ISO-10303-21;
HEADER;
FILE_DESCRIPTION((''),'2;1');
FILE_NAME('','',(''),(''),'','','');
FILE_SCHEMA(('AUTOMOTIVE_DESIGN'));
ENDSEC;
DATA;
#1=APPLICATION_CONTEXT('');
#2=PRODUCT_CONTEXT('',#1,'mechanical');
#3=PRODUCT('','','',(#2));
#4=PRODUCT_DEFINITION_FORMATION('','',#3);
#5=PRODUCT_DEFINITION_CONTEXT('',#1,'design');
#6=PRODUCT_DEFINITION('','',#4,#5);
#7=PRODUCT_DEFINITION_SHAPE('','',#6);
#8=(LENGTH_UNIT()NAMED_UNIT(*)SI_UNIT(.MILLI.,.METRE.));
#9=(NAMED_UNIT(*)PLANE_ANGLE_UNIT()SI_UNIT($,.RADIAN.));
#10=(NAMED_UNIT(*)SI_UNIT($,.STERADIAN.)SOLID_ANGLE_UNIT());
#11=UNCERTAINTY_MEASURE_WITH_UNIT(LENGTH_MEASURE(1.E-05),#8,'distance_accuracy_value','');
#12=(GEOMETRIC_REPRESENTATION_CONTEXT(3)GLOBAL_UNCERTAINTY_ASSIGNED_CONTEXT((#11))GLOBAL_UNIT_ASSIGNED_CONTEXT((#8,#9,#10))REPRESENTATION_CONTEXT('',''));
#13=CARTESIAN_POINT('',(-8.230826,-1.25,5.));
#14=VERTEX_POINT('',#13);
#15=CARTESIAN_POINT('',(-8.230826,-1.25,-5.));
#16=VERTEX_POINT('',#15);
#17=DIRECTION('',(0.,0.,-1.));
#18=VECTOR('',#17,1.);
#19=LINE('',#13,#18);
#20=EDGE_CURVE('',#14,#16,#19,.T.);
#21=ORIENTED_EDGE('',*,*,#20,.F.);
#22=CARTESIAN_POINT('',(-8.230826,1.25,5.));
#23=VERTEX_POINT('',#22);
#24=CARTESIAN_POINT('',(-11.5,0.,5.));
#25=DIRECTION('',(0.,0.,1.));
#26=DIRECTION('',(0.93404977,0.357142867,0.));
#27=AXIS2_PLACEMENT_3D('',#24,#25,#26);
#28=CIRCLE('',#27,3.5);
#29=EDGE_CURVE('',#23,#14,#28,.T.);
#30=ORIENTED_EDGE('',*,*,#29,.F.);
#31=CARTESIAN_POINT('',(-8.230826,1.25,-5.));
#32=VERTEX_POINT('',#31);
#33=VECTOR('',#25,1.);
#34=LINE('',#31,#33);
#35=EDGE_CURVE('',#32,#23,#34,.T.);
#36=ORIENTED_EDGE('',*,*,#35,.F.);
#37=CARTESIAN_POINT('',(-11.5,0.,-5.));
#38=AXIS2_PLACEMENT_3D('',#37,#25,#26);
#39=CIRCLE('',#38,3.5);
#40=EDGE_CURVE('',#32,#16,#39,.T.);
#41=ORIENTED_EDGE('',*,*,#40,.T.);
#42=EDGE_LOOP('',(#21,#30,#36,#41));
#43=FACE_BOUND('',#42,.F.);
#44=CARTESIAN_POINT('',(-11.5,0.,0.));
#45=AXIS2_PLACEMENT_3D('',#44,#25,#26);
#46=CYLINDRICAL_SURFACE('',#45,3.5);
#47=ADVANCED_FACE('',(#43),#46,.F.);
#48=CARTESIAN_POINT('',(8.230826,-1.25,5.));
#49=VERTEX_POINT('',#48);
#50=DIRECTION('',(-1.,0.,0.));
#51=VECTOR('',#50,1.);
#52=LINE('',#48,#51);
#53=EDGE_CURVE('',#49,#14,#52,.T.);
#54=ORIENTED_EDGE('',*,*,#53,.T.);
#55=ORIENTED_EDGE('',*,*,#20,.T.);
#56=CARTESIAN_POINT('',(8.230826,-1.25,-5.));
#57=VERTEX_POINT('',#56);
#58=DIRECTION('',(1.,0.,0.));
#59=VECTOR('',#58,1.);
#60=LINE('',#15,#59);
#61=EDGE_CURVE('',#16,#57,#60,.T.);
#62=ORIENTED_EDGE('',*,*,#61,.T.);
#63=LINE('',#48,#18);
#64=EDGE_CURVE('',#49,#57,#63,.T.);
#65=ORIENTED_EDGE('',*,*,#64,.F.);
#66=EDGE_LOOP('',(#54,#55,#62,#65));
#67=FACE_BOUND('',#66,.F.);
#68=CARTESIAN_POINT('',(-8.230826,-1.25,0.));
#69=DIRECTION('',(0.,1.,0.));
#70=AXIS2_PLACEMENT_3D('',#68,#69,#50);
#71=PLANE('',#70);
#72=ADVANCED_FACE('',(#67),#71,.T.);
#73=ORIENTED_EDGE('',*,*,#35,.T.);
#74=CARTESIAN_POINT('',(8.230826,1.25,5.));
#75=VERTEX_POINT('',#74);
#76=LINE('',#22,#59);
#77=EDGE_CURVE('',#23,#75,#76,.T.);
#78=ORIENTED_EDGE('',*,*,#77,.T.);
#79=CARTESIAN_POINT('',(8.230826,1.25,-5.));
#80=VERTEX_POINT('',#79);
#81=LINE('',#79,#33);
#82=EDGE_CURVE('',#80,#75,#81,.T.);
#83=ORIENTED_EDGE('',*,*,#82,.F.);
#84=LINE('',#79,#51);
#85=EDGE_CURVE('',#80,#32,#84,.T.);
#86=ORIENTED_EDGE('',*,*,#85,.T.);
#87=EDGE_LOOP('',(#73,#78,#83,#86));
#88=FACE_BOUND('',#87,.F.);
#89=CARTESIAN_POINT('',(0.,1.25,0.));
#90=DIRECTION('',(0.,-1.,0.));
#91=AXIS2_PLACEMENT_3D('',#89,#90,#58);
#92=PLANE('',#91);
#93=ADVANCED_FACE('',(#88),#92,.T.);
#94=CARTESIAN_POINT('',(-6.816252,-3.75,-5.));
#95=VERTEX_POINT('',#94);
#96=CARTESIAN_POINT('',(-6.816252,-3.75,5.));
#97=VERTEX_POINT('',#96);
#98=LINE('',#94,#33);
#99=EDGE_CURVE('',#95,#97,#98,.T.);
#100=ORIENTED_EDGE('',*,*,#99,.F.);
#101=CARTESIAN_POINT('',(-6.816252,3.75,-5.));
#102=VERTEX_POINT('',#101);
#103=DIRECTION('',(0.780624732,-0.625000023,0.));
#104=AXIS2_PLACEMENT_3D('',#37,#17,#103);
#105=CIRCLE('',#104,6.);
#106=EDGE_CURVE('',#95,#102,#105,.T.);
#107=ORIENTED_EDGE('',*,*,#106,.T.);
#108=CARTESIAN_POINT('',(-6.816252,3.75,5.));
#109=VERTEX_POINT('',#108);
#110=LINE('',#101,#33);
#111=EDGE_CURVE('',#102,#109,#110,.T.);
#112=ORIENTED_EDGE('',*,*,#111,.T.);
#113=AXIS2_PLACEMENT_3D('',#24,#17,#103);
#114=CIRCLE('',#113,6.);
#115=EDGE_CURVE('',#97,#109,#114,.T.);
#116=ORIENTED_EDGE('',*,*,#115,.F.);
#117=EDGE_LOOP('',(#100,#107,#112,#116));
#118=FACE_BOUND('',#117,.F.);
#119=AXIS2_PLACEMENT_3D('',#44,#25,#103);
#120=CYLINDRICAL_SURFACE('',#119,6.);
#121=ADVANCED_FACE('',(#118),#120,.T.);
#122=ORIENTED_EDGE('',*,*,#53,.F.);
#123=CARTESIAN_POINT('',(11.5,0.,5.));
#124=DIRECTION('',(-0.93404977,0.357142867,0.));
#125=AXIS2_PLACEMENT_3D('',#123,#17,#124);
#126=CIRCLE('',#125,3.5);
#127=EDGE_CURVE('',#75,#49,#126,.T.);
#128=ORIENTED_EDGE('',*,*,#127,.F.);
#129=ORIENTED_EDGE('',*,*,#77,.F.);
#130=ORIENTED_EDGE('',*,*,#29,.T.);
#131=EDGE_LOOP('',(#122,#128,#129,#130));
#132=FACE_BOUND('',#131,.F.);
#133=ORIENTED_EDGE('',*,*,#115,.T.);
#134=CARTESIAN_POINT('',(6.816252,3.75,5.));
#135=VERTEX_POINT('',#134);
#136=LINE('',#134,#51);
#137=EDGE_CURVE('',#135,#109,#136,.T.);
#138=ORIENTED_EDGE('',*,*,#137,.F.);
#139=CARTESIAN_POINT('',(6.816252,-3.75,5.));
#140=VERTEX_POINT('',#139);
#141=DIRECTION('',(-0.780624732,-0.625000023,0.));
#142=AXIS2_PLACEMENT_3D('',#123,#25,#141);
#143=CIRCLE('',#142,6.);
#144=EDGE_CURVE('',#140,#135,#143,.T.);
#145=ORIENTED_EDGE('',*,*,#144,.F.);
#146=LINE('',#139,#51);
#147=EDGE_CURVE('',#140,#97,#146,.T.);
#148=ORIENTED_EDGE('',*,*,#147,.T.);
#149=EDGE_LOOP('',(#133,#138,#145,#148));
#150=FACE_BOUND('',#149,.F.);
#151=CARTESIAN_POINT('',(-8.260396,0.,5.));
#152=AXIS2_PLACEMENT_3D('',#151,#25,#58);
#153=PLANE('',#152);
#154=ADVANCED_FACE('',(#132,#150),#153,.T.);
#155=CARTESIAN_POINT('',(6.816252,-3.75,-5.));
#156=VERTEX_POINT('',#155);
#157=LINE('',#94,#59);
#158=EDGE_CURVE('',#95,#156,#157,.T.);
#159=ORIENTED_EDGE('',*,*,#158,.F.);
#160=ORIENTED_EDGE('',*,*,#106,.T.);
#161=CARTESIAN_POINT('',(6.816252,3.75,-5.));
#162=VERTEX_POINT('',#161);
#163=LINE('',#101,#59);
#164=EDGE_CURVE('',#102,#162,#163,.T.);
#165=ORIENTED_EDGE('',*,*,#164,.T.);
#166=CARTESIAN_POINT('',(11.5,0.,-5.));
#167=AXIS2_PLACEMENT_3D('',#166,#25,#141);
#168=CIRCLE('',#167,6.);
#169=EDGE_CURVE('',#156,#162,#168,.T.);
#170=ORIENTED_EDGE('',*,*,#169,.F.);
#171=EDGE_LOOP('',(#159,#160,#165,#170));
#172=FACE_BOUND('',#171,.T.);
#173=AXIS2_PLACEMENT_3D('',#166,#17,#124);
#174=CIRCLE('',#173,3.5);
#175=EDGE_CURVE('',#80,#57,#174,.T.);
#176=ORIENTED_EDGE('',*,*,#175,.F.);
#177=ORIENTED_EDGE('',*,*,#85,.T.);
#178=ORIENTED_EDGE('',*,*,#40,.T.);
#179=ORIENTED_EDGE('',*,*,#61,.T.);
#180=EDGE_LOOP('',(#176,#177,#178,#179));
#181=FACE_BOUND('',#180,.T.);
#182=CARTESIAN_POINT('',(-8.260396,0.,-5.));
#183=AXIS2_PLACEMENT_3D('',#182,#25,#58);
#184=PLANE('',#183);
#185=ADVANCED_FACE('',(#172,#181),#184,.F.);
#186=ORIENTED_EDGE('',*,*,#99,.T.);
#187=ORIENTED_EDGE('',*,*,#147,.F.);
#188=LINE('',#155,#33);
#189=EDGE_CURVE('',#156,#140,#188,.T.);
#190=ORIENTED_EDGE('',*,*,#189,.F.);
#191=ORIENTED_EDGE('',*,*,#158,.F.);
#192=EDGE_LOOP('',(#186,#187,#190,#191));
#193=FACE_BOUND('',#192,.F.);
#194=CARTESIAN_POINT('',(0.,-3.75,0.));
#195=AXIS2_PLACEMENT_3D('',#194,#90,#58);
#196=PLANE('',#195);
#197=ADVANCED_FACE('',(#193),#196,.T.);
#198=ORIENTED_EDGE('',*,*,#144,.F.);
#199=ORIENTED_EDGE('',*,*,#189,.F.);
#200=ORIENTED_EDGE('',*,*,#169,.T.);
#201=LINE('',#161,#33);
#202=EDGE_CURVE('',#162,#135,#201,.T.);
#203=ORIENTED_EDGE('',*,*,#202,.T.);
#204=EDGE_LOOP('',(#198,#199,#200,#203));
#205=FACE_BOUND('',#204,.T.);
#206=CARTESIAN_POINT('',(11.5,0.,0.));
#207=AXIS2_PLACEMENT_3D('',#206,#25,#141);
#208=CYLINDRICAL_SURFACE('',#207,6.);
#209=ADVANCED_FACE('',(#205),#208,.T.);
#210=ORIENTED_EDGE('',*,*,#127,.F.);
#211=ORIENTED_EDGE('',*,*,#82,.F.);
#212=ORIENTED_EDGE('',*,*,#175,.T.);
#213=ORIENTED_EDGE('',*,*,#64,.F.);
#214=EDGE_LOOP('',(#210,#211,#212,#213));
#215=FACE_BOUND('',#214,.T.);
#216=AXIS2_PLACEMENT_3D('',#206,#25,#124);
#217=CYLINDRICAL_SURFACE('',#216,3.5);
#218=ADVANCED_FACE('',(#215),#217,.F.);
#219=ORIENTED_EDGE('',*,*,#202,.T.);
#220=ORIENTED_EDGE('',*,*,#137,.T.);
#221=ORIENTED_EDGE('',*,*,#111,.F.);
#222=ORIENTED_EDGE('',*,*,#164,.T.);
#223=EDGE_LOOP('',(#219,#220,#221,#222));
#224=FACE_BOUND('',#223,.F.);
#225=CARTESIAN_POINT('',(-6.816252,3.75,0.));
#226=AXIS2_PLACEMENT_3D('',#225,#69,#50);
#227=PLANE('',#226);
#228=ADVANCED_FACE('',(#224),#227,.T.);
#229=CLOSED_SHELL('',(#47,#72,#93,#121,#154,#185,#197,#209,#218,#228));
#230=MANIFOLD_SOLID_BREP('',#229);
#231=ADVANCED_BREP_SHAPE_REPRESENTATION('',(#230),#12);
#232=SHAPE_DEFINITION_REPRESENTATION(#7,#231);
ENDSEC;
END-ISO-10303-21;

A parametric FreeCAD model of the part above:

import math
import FreeCAD as App
import Part
import Sketcher
from FreeCAD import Vector

doc = App.newDocument("Part")
body = doc.addObject("PartDesign::Body", "Body")

# Sketch on XY plane
sketch1 = doc.addObject("Sketcher::SketchObject", "Sketch")
body.addObject(sketch1)
sketch1.AttachmentSupport = (doc.XY_Plane, [""])
sketch1.MapMode = "FlatFace"
sketch1.addGeometry(Part.LineSegment(Vector(0, -3.8, 0), Vector(6.8, -3.8, 0)), False)
sketch1.addGeometry(Part.ArcOfCircle(Part.Circle(Vector(11.5, 0, 0), Vector(0, 0, 1), 6), math.radians(-141), math.radians(141)), False)
sketch1.addGeometry(Part.LineSegment(Vector(6.8, 3.8, 0), Vector(0, 3.8, 0)), False)
sketch1.addGeometry(Part.LineSegment(Vector(0, 3.8, 0), Vector(0, 1.2, 0)), False)
sketch1.addGeometry(Part.LineSegment(Vector(0, 1.2, 0), Vector(8.2, 1.2, 0)), False)
sketch1.addGeometry(Part.ArcOfCircle(Part.Circle(Vector(11.5, 0, 0), Vector(0, 0, 1), 3.5), math.radians(-159), math.radians(159)), False)
sketch1.addGeometry(Part.LineSegment(Vector(8.2, -1.2, 0), Vector(0, -1.2, 0)), False)
sketch1.addGeometry(Part.LineSegment(Vector(0, -1.2, 0), Vector(0, -3.8, 0)), False)
sketch1.addConstraint(Sketcher.Constraint("Coincident", 0, 2, 1, 1))
sketch1.addConstraint(Sketcher.Constraint("Coincident", 1, 2, 2, 1))
sketch1.addConstraint(Sketcher.Constraint("Coincident", 2, 2, 3, 1))
sketch1.addConstraint(Sketcher.Constraint("Coincident", 3, 2, 4, 1))
sketch1.addConstraint(Sketcher.Constraint("Coincident", 4, 2, 5, 2))
sketch1.addConstraint(Sketcher.Constraint("Coincident", 5, 1, 6, 1))
sketch1.addConstraint(Sketcher.Constraint("Coincident", 6, 2, 7, 1))
sketch1.addConstraint(Sketcher.Constraint("Coincident", 7, 2, 0, 1))
sketch1.addConstraint(Sketcher.Constraint("Horizontal", 0))
sketch1.addConstraint(Sketcher.Constraint("Horizontal", 2))
sketch1.addConstraint(Sketcher.Constraint("Vertical", 3))
sketch1.addConstraint(Sketcher.Constraint("Horizontal", 4))
sketch1.addConstraint(Sketcher.Constraint("Horizontal", 6))
sketch1.addConstraint(Sketcher.Constraint("Vertical", 7))
sketch1.addConstraint(Sketcher.Constraint("Coincident", 5, 3, 1, 3))
sketch1.addConstraint(Sketcher.Constraint("Symmetric", 3, 2, 6, 2, -1, 1))
sketch1.addConstraint(Sketcher.Constraint("Symmetric", 0, 2, 1, 2, -1))
sketch1.addConstraint(Sketcher.Constraint("PointOnObject", 2, 2, -2))
sketch1.addConstraint(Sketcher.Constraint("Radius", 1, 6.0))
sketch1.addConstraint(Sketcher.Constraint("Radius", 5, 3.5))
sketch1.addConstraint(Sketcher.Constraint("DistanceY", 3, 2, 3, 1, 2.5))
sketch1.addConstraint(Sketcher.Constraint("DistanceY", 0, 2, 3, 2, 5.0))
sketch1.addConstraint(Sketcher.Constraint("DistanceX", -1, 1, 1, 3, 11.5))
pad1 = doc.addObject("PartDesign::Pad", "Pad")
body.addObject(pad1)
pad1.Profile = sketch1
pad1.Length = 10
pad1.Midplane = True
body2 = doc.addObject("PartDesign::Body", "Body001")
doc.recompute()

body2.BaseFeature = body
doc.recompute()

mirroring = doc.addObject("Part::Mirroring", "Mirroring")
mirroring.Source = body
mirroring.Base = Vector(0, 0, 0)
mirroring.Normal = Vector(1, 0, 0)
body3 = doc.addObject("PartDesign::Body", "Body002")
body3.BaseFeature = mirroring
boolean = doc.addObject("PartDesign::Boolean", "Boolean")
body2.addObject(boolean)
boolean.Type = "Fuse"
boolean.addObjects([body3])
doc.recompute()
mirroring.Visibility = False

doc.recompute()
